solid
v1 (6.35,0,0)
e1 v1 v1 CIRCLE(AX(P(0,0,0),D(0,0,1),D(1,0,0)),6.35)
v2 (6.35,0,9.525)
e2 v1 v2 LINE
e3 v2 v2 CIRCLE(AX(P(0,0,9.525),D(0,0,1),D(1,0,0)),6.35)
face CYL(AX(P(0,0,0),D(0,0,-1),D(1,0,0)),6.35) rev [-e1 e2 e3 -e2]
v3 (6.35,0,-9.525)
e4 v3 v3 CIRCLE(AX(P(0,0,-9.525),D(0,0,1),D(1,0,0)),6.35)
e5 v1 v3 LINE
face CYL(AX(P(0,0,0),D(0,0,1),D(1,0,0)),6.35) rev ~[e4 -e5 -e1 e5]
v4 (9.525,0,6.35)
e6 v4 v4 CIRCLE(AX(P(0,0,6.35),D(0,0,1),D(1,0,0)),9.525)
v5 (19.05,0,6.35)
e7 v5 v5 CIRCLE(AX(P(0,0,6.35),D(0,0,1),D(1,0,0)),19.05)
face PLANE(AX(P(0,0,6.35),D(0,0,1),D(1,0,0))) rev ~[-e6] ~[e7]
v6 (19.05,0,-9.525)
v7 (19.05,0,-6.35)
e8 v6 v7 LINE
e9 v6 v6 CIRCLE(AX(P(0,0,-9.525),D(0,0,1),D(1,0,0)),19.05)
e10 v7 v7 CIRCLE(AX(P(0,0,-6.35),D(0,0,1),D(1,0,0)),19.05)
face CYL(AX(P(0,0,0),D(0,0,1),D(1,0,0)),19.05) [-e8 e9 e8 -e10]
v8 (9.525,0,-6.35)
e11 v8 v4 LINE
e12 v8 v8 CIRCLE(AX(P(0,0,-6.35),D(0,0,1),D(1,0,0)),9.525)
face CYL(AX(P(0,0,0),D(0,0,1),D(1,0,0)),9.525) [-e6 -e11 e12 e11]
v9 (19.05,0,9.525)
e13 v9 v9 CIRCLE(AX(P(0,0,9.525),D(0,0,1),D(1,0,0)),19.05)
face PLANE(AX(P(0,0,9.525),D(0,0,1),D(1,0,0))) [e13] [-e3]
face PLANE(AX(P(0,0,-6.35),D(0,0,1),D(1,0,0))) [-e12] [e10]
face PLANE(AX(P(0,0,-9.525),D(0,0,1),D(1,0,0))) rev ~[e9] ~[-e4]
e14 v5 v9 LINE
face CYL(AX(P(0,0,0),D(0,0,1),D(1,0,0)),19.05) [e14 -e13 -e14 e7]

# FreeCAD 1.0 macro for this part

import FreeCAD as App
import Part
import Sketcher
from FreeCAD import Vector
Q = App.Units.Quantity

doc = App.newDocument("Part")
body = doc.addObject("PartDesign::Body", "Body")

# Sketch on XY plane
sketch1 = body.newObject("Sketcher::SketchObject", "Sketch")
sketch1.AttachmentSupport = (doc.getObject("XY_Plane"), [""])
sketch1.MapMode = "FlatFace"
sketch1.addGeometry(Part.Circle(Vector(0, 0, 0), Vector(0, 0, 1), 19), False)
sketch1.addGeometry(Part.Circle(Vector(0, 0, 0), Vector(0, 0, 1), 6), False)
sketch1.addConstraint(Sketcher.Constraint("Coincident", 0, 3, -1, 1))
sketch1.addConstraint(Sketcher.Constraint("Coincident", 1, 3, -1, 1))
sketch1.addConstraint(Sketcher.Constraint("Diameter", 0, Q("1.5 in")))
sketch1.addConstraint(Sketcher.Constraint("Diameter", 1, Q("0.5 in")))
pad1 = body.newObject("PartDesign::Pad", "Pad")
pad1.Profile = sketch1
pad1.Length = Q("0.75 in")
pad1.Midplane = True

# Sketch on XY plane
sketch2 = body.newObject("Sketcher::SketchObject", "Sketch001")
sketch2.AttachmentSupport = (doc.getObject("XY_Plane"), [""])
sketch2.MapMode = "FlatFace"
sketch2.addGeometry(Part.Circle(Vector(0, 0, 0), Vector(0, 0, 1), 19), False)
sketch2.addGeometry(Part.Circle(Vector(0, 0, 0), Vector(0, 0, 1), 10), False)
sketch2.addConstraint(Sketcher.Constraint("Coincident", 0, 3, -1, 1))
sketch2.addConstraint(Sketcher.Constraint("Coincident", 1, 3, -1, 1))
sketch2.addConstraint(Sketcher.Constraint("Diameter", 0, Q("1.5 in")))
sketch2.addConstraint(Sketcher.Constraint("Diameter", 1, Q("0.75 in")))
pocket1 = body.newObject("PartDesign::Pocket", "Pocket")
pocket1.Profile = sketch2
pocket1.Length = Q("0.5 in")
pocket1.Midplane = True

doc.recompute()
